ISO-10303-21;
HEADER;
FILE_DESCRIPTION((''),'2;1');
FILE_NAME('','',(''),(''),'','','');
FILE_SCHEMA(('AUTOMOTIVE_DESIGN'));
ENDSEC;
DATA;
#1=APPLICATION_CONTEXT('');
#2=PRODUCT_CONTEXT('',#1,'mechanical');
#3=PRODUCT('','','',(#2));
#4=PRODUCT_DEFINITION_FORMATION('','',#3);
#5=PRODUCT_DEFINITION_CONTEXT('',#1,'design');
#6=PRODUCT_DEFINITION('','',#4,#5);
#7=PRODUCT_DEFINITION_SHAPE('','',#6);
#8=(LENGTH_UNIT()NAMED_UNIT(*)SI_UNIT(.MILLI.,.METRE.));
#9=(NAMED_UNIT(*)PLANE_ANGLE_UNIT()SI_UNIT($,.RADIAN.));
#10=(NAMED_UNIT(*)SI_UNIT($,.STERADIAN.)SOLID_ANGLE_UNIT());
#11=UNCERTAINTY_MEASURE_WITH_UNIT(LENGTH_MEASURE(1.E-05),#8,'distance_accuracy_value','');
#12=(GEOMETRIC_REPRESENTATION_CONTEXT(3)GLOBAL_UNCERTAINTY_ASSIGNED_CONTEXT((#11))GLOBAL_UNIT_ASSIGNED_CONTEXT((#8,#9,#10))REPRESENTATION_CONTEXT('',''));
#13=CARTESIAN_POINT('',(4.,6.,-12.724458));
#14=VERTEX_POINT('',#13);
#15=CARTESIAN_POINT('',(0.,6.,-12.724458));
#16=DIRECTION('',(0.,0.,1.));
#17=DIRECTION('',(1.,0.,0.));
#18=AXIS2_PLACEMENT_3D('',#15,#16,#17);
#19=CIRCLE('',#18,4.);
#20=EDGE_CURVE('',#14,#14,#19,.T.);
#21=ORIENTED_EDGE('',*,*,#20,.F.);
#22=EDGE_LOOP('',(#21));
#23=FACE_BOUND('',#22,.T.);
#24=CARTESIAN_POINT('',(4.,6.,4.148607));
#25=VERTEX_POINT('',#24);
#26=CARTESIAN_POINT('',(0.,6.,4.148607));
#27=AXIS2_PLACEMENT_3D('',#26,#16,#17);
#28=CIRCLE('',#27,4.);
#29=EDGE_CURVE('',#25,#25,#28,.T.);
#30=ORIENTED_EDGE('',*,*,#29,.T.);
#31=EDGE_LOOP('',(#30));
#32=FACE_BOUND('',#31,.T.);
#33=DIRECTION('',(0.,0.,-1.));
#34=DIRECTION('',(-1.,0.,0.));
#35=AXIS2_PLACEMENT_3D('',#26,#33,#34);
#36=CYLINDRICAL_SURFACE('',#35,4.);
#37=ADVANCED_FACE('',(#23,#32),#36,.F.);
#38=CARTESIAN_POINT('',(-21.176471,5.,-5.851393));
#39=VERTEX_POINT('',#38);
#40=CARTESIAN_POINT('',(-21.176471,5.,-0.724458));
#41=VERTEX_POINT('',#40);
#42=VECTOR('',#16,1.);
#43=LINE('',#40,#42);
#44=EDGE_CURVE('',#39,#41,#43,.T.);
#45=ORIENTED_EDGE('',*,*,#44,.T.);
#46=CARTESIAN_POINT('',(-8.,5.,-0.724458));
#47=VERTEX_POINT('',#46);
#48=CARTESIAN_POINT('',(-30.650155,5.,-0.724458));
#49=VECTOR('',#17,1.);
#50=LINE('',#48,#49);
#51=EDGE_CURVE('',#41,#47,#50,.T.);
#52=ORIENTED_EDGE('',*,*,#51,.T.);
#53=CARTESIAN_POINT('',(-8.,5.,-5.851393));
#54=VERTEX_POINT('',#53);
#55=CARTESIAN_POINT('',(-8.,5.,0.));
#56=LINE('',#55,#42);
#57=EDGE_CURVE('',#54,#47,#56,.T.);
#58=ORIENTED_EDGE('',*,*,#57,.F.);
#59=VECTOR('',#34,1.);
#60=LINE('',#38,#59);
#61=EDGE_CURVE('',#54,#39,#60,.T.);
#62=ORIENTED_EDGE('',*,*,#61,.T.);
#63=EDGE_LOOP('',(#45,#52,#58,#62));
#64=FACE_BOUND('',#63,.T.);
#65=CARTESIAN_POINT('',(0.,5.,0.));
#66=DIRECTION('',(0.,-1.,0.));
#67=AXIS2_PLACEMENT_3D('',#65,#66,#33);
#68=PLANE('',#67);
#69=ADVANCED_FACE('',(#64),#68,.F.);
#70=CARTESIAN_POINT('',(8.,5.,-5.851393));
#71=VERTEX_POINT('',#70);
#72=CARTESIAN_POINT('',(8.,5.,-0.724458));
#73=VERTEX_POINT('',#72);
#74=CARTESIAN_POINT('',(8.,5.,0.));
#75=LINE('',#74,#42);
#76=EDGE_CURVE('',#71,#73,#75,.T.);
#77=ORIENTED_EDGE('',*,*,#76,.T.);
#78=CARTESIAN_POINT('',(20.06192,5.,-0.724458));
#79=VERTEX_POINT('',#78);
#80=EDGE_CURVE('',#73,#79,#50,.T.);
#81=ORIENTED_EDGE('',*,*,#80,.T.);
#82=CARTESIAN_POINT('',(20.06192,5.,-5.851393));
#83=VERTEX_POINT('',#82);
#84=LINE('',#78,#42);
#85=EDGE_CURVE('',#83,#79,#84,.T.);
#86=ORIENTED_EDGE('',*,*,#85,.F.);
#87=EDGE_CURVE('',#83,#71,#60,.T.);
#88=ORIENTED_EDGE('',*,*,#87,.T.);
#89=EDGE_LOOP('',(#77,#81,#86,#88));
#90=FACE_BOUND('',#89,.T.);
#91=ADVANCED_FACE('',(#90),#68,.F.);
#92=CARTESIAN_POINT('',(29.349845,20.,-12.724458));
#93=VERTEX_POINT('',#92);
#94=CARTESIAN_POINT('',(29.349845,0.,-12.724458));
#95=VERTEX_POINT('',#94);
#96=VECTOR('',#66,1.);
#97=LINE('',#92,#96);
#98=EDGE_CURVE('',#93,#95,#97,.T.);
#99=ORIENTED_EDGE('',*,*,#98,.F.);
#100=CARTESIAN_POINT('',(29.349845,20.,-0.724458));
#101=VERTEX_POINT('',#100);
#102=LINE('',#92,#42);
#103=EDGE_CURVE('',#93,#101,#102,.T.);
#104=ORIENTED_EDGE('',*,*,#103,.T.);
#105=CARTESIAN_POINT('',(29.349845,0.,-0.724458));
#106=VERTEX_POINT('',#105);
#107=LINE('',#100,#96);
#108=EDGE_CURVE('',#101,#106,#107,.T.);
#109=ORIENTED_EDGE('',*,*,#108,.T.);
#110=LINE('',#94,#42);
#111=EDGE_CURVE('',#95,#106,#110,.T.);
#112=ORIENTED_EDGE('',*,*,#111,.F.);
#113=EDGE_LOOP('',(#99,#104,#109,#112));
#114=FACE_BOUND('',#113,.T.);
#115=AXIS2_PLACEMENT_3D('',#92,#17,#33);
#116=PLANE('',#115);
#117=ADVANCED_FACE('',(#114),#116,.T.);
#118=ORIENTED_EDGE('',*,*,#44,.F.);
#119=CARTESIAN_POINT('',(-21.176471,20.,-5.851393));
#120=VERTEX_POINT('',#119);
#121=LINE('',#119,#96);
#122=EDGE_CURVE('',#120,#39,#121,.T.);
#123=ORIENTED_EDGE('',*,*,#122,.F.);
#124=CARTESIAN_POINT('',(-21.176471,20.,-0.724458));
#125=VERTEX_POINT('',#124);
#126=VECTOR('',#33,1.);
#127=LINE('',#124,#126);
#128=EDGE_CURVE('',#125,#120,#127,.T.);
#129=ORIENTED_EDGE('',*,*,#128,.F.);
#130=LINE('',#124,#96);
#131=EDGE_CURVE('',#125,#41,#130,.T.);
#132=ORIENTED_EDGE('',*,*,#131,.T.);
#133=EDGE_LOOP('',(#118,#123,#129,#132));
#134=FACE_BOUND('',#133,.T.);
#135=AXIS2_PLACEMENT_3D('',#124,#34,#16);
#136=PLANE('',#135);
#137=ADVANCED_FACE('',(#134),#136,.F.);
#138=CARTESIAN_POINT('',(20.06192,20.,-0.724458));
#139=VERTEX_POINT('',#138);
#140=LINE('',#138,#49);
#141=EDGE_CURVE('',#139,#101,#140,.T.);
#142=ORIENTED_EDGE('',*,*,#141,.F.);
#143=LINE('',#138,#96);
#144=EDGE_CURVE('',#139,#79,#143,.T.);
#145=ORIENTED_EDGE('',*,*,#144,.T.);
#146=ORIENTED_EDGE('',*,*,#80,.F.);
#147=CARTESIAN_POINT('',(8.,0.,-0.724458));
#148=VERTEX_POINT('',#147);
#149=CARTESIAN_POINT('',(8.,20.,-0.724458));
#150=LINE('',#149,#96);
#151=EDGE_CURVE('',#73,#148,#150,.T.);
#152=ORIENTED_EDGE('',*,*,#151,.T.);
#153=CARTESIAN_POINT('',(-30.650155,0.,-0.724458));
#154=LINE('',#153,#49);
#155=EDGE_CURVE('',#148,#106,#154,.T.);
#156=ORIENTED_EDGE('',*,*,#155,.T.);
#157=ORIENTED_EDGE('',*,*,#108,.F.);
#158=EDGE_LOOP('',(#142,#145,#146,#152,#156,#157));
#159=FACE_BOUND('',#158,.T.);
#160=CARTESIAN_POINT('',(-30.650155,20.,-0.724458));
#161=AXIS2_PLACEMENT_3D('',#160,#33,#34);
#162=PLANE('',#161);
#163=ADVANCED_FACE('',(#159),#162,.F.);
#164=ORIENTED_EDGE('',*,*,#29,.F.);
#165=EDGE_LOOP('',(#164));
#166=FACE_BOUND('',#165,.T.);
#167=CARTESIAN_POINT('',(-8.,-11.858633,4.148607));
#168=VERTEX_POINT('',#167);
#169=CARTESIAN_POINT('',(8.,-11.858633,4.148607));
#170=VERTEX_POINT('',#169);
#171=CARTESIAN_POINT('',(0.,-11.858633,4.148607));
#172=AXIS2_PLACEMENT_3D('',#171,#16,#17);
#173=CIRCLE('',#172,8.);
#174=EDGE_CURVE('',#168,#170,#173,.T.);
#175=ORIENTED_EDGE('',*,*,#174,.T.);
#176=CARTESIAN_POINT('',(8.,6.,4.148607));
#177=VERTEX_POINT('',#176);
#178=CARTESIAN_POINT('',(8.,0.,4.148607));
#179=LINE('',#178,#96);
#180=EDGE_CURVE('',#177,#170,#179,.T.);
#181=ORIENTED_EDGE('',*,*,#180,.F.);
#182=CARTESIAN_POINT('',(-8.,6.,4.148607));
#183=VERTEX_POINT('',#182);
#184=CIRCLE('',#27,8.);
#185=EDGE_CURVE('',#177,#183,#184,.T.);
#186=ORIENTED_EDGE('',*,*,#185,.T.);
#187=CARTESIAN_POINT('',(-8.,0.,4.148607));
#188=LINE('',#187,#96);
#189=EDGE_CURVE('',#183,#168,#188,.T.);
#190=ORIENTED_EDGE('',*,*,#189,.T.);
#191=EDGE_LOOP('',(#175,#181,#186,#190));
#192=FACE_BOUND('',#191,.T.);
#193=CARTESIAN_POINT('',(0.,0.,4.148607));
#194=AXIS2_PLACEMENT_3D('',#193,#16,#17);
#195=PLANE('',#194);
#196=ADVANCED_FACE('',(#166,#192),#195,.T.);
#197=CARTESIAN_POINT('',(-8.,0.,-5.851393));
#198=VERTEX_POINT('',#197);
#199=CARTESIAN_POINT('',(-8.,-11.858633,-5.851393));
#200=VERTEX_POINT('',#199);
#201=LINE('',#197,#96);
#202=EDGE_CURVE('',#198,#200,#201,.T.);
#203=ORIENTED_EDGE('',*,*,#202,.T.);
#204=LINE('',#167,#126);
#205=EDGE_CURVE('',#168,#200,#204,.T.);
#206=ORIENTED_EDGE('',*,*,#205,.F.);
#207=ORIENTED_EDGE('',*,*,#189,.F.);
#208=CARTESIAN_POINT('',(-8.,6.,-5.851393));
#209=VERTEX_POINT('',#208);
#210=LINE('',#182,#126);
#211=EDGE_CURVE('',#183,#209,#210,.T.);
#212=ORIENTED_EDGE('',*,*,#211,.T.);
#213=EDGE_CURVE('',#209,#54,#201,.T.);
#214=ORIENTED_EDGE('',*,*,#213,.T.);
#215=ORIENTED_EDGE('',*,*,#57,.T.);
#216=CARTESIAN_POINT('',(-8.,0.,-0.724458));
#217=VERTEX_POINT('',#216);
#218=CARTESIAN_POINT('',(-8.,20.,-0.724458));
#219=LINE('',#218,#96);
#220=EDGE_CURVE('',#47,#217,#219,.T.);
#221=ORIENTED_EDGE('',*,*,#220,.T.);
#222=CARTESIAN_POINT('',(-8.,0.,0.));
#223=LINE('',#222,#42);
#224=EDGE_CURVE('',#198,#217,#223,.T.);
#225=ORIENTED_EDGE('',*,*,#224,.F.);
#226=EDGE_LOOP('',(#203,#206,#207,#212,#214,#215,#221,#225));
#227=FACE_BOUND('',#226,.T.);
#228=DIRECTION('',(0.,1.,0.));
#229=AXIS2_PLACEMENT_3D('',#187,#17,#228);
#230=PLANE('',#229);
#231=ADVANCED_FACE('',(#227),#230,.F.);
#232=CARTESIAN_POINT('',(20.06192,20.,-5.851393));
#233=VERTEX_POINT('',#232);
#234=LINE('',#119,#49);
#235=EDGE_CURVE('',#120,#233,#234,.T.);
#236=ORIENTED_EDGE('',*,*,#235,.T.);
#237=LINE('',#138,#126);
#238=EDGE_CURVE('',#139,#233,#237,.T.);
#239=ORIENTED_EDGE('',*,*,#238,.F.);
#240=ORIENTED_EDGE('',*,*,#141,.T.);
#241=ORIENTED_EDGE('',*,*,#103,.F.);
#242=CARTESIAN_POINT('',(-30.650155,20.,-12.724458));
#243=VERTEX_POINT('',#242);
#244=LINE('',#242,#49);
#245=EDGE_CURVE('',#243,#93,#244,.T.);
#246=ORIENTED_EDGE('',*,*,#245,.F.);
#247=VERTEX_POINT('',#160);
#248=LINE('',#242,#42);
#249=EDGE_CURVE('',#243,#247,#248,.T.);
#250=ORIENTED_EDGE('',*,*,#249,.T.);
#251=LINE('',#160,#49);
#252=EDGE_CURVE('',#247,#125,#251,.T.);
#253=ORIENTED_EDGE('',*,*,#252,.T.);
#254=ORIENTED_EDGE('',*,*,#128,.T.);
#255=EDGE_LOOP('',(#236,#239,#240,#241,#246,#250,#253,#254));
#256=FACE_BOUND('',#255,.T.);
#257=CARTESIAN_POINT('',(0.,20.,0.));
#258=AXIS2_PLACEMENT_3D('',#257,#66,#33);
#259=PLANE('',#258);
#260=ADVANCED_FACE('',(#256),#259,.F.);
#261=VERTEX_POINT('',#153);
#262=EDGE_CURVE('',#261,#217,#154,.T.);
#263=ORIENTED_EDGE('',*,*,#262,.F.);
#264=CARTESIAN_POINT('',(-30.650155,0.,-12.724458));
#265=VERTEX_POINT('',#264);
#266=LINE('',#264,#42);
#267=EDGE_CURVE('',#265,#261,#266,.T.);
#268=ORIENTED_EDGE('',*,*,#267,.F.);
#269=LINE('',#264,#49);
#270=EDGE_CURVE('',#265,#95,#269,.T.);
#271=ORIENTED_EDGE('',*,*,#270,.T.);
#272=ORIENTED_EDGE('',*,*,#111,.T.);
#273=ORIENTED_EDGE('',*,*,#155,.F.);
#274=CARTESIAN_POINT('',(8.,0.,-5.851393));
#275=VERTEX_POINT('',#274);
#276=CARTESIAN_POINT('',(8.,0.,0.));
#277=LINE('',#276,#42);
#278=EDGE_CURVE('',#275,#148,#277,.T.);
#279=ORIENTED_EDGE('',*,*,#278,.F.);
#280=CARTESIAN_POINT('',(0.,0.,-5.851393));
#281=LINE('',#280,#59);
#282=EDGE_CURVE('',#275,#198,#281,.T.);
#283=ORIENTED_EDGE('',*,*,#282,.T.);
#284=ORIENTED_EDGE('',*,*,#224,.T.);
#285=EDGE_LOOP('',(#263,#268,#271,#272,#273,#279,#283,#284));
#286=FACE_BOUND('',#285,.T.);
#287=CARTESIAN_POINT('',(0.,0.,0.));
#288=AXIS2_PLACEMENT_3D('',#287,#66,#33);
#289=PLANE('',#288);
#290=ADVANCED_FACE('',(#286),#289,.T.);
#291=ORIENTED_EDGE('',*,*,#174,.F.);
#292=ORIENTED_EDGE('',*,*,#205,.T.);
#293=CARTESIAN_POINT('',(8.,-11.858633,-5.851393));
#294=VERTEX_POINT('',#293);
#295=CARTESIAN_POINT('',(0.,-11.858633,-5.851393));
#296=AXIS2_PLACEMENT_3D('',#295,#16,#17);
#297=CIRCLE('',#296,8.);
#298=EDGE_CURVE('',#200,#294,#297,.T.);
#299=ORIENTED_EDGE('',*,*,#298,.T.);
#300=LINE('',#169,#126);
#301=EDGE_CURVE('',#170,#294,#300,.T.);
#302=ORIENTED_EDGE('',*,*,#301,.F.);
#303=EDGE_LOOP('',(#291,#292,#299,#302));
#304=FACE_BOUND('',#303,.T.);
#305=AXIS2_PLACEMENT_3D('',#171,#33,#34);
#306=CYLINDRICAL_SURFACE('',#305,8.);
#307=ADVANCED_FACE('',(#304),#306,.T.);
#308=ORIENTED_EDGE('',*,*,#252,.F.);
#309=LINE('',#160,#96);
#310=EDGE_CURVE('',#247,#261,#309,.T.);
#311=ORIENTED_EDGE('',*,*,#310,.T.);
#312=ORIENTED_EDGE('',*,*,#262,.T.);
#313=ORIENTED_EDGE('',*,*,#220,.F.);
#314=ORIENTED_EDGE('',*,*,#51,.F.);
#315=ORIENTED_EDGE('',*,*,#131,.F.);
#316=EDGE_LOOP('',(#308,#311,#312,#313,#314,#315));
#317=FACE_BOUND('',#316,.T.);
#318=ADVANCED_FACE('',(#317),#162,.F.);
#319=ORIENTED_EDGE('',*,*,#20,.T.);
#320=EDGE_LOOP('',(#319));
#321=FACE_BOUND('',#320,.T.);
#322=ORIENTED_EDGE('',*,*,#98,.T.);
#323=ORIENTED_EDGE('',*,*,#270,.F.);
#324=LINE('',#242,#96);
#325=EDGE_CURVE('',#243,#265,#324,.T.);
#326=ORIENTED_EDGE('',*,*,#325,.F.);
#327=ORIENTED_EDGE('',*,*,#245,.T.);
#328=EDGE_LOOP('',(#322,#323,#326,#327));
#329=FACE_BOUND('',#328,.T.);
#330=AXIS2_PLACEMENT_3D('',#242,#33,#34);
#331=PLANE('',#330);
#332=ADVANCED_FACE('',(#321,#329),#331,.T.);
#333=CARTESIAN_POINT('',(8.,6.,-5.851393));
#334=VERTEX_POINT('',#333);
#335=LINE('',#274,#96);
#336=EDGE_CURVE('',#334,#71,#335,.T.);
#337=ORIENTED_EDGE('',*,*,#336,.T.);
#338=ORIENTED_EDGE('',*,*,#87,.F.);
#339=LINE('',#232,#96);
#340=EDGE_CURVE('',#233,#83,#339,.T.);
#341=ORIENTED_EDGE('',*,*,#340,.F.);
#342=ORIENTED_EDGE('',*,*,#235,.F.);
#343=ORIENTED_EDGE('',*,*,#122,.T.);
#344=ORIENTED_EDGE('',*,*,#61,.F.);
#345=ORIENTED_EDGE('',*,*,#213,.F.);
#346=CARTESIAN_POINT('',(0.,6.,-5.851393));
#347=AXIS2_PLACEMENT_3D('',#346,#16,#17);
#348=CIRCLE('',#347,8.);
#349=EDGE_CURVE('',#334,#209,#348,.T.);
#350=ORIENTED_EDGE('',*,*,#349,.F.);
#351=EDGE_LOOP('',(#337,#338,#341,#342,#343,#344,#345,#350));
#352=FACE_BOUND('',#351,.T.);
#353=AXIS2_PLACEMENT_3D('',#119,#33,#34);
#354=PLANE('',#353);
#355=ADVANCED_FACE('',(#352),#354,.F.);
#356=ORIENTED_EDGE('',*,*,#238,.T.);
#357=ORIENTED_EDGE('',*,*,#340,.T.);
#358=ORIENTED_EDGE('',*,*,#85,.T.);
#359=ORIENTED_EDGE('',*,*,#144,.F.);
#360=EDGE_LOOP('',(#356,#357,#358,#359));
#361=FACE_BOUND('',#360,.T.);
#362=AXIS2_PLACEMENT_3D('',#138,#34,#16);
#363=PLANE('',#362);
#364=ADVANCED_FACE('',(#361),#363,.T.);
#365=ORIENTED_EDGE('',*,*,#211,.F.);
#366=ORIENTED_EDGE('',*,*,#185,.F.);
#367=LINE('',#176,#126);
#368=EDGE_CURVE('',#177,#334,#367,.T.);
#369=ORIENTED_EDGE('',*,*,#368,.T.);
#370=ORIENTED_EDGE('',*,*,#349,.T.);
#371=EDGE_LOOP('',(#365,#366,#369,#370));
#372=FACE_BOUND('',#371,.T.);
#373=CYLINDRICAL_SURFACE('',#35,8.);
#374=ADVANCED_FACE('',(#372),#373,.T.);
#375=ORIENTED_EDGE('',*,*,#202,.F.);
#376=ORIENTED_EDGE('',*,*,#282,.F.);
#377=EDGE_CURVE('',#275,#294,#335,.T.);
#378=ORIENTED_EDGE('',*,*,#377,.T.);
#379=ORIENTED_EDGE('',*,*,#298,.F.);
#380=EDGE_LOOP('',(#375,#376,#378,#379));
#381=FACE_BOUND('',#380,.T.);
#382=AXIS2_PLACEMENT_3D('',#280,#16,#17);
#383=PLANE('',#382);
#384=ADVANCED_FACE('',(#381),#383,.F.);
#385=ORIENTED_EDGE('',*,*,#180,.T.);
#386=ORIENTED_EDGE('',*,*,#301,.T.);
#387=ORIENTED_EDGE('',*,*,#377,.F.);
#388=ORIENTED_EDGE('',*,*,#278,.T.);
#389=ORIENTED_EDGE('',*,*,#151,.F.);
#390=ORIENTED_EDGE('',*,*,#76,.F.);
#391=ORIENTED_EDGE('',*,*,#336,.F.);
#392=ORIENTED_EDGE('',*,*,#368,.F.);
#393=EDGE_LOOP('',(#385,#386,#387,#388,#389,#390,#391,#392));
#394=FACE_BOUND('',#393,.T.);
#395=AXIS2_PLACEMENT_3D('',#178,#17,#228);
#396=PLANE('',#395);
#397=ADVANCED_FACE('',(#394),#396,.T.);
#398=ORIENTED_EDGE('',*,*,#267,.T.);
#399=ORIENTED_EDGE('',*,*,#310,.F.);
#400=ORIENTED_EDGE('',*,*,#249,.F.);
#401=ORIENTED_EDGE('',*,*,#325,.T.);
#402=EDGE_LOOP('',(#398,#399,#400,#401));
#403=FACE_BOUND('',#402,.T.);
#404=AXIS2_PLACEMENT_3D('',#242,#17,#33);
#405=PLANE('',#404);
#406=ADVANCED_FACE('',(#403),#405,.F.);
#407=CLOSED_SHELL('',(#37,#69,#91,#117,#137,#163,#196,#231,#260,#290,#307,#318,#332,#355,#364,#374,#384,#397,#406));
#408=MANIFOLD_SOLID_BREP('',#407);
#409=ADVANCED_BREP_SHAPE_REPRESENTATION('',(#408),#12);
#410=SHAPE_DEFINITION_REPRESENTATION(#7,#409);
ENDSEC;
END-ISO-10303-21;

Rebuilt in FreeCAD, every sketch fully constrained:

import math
import FreeCAD as App
import Part
import Sketcher
Q = App.Units.Quantity


def add_polygon(sketch, points):
    """Adds a closed chain of lines whose ends are joined by coincident constraints."""
    first, n = sketch.GeometryCount, len(points)
    for a, b in zip(points, points[1:] + points[:1]):
        sketch.addGeometry(Part.LineSegment(App.Vector(*a, 0), App.Vector(*b, 0)), False)
    for i in range(n):
        sketch.addConstraint(Sketcher.Constraint("Coincident", first + i, 2, first + (i + 1) % n, 1))

doc = App.newDocument("Part")
body = doc.addObject("PartDesign::Body", "Body")

sketch1 = body.newObject("Sketcher::SketchObject", "Sketch")
sketch1.AttachmentSupport = (doc.getObject("XZ_Plane"), [""])
sketch1.MapMode = "FlatFace"
add_polygon(sketch1, [(20, -1), (29, -1), (29, -13), (-31, -13), (-31, -1), (-21, -1), (-21, -6), (20, -6)])
sketch1.addConstraint([
    Sketcher.Constraint("Horizontal", 0),
    Sketcher.Constraint("Vertical", 1),
    Sketcher.Constraint("Horizontal", 2),
    Sketcher.Constraint("Vertical", 3),
    Sketcher.Constraint("Horizontal", 4),
    Sketcher.Constraint("Vertical", 5),
    Sketcher.Constraint("Horizontal", 6),
    Sketcher.Constraint("Vertical", 7),
    Sketcher.Constraint("Horizontal", 0, 2, 3, 2),
    Sketcher.Constraint("DistanceX", 2, 2, 2, 1, Q("60 mm")),
    Sketcher.Constraint("DistanceY", 1, 2, 1, 1, Q("12 mm")),
    Sketcher.Constraint("DistanceX", 6, 1, 6, 2, Q("41.23839 mm")),
    Sketcher.Constraint("DistanceX", 0, 1, 0, 2, Q("9.287926 mm")),
    Sketcher.Constraint("DistanceY", 5, 2, 5, 1, Q("5.126935 mm")),
    Sketcher.Constraint("DistanceY", 0, 2, -1, 1, Q("0.724458 mm")),
    Sketcher.Constraint("DistanceX", 4, 2, -1, 1, Q("21.176471 mm")),
])
pad1 = body.newObject("PartDesign::Pad", "Pad")
pad1.Profile = sketch1
pad1.Length = 20
pad1.Reversed = True

sketch2 = body.newObject("Sketcher::SketchObject", "Sketch001")
sketch2.AttachmentSupport = (doc.getObject("XZ_Plane"), [""])
sketch2.MapMode = "FlatFace"
add_polygon(sketch2, [(-31, -1), (-31, -13), (29, -13), (29, -1)])
sketch2.addConstraint([
    Sketcher.Constraint("Vertical", 0),
    Sketcher.Constraint("Horizontal", 1),
    Sketcher.Constraint("Vertical", 2),
    Sketcher.Constraint("Horizontal", 3),
    Sketcher.Constraint("DistanceX", 1, 1, 1, 2, Q("60 mm")),
    Sketcher.Constraint("DistanceY", 0, 2, 0, 1, Q("12 mm")),
    Sketcher.Constraint("DistanceY", 0, 2, -1, 1, Q("12.724458 mm")),
    Sketcher.Constraint("DistanceX", 0, 2, -1, 1, Q("30.650155 mm")),
])
pad2 = body.newObject("PartDesign::Pad", "Pad001")
pad2.Profile = sketch2
pad2.Length = 5
pad2.Reversed = True

sketch3 = body.newObject("Sketcher::SketchObject", "Sketch002")
sketch3.AttachmentSupport = (doc.getObject("XY_Plane"), [""])
sketch3.MapMode = "FlatFace"
sketch3.AttachmentOffset = App.Placement(App.Vector(0, 0, -5.851393), App.Rotation())
sketch3.addGeometry([
    Part.LineSegment(App.Vector(-8, 6, 0), App.Vector(-8, -11.9, 0)),
    Part.ArcOfCircle(Part.Circle(App.Vector(0, -11.9, 0), App.Vector(0, 0, 1), 8), math.radians(180), math.radians(360)),
    Part.LineSegment(App.Vector(8, -11.9, 0), App.Vector(8, 6, 0)),
    Part.ArcOfCircle(Part.Circle(App.Vector(0, 6, 0), App.Vector(0, 0, 1), 8), math.radians(0), math.radians(180)),
    Part.Circle(App.Vector(0, 6, 0), App.Vector(0, 0, 1), 4),
], False)
sketch3.addConstraint([
    Sketcher.Constraint("Tangent", 0, 2, 1, 1),
    Sketcher.Constraint("Tangent", 1, 2, 2, 1),
    Sketcher.Constraint("Tangent", 2, 2, 3, 1),
    Sketcher.Constraint("Tangent", 3, 2, 0, 1),
    Sketcher.Constraint("Vertical", 0),
    Sketcher.Constraint("Vertical", 2),
    Sketcher.Constraint("Coincident", 4, 3, 3, 3),
    Sketcher.Constraint("PointOnObject", 1, 3, -2),
    Sketcher.Constraint("Diameter", 4, Q("8 mm")),
    Sketcher.Constraint("Radius", 1, Q("8 mm")),
    Sketcher.Constraint("DistanceY", -1, 1, 3, 3, Q("6 mm")),
    Sketcher.Constraint("DistanceY", 0, 2, 0, 1, Q("17.858633 mm")),
])
pad3 = body.newObject("PartDesign::Pad", "Pad002")
pad3.Profile = sketch3
pad3.Length = 10

sketch4 = body.newObject("Sketcher::SketchObject", "Sketch003")
sketch4.AttachmentSupport = (doc.getObject("XY_Plane"), [""])
sketch4.MapMode = "FlatFace"
sketch4.AttachmentOffset = App.Placement(App.Vector(0, 0, -5.851393), App.Rotation())
sketch4.addGeometry(Part.Circle(App.Vector(0, 6, 0), App.Vector(0, 0, 1), 4), False)
sketch4.addConstraint([
    Sketcher.Constraint("PointOnObject", 0, 3, -2),
    Sketcher.Constraint("Diameter", 0, Q("8 mm")),
    Sketcher.Constraint("DistanceY", -1, 1, 0, 3, Q("6 mm")),
])
pocket1 = body.newObject("PartDesign::Pocket", "Pocket")
pocket1.Profile = sketch4
pocket1.Type = "ThroughAll"
pocket1.Midplane = True

doc.recompute()
